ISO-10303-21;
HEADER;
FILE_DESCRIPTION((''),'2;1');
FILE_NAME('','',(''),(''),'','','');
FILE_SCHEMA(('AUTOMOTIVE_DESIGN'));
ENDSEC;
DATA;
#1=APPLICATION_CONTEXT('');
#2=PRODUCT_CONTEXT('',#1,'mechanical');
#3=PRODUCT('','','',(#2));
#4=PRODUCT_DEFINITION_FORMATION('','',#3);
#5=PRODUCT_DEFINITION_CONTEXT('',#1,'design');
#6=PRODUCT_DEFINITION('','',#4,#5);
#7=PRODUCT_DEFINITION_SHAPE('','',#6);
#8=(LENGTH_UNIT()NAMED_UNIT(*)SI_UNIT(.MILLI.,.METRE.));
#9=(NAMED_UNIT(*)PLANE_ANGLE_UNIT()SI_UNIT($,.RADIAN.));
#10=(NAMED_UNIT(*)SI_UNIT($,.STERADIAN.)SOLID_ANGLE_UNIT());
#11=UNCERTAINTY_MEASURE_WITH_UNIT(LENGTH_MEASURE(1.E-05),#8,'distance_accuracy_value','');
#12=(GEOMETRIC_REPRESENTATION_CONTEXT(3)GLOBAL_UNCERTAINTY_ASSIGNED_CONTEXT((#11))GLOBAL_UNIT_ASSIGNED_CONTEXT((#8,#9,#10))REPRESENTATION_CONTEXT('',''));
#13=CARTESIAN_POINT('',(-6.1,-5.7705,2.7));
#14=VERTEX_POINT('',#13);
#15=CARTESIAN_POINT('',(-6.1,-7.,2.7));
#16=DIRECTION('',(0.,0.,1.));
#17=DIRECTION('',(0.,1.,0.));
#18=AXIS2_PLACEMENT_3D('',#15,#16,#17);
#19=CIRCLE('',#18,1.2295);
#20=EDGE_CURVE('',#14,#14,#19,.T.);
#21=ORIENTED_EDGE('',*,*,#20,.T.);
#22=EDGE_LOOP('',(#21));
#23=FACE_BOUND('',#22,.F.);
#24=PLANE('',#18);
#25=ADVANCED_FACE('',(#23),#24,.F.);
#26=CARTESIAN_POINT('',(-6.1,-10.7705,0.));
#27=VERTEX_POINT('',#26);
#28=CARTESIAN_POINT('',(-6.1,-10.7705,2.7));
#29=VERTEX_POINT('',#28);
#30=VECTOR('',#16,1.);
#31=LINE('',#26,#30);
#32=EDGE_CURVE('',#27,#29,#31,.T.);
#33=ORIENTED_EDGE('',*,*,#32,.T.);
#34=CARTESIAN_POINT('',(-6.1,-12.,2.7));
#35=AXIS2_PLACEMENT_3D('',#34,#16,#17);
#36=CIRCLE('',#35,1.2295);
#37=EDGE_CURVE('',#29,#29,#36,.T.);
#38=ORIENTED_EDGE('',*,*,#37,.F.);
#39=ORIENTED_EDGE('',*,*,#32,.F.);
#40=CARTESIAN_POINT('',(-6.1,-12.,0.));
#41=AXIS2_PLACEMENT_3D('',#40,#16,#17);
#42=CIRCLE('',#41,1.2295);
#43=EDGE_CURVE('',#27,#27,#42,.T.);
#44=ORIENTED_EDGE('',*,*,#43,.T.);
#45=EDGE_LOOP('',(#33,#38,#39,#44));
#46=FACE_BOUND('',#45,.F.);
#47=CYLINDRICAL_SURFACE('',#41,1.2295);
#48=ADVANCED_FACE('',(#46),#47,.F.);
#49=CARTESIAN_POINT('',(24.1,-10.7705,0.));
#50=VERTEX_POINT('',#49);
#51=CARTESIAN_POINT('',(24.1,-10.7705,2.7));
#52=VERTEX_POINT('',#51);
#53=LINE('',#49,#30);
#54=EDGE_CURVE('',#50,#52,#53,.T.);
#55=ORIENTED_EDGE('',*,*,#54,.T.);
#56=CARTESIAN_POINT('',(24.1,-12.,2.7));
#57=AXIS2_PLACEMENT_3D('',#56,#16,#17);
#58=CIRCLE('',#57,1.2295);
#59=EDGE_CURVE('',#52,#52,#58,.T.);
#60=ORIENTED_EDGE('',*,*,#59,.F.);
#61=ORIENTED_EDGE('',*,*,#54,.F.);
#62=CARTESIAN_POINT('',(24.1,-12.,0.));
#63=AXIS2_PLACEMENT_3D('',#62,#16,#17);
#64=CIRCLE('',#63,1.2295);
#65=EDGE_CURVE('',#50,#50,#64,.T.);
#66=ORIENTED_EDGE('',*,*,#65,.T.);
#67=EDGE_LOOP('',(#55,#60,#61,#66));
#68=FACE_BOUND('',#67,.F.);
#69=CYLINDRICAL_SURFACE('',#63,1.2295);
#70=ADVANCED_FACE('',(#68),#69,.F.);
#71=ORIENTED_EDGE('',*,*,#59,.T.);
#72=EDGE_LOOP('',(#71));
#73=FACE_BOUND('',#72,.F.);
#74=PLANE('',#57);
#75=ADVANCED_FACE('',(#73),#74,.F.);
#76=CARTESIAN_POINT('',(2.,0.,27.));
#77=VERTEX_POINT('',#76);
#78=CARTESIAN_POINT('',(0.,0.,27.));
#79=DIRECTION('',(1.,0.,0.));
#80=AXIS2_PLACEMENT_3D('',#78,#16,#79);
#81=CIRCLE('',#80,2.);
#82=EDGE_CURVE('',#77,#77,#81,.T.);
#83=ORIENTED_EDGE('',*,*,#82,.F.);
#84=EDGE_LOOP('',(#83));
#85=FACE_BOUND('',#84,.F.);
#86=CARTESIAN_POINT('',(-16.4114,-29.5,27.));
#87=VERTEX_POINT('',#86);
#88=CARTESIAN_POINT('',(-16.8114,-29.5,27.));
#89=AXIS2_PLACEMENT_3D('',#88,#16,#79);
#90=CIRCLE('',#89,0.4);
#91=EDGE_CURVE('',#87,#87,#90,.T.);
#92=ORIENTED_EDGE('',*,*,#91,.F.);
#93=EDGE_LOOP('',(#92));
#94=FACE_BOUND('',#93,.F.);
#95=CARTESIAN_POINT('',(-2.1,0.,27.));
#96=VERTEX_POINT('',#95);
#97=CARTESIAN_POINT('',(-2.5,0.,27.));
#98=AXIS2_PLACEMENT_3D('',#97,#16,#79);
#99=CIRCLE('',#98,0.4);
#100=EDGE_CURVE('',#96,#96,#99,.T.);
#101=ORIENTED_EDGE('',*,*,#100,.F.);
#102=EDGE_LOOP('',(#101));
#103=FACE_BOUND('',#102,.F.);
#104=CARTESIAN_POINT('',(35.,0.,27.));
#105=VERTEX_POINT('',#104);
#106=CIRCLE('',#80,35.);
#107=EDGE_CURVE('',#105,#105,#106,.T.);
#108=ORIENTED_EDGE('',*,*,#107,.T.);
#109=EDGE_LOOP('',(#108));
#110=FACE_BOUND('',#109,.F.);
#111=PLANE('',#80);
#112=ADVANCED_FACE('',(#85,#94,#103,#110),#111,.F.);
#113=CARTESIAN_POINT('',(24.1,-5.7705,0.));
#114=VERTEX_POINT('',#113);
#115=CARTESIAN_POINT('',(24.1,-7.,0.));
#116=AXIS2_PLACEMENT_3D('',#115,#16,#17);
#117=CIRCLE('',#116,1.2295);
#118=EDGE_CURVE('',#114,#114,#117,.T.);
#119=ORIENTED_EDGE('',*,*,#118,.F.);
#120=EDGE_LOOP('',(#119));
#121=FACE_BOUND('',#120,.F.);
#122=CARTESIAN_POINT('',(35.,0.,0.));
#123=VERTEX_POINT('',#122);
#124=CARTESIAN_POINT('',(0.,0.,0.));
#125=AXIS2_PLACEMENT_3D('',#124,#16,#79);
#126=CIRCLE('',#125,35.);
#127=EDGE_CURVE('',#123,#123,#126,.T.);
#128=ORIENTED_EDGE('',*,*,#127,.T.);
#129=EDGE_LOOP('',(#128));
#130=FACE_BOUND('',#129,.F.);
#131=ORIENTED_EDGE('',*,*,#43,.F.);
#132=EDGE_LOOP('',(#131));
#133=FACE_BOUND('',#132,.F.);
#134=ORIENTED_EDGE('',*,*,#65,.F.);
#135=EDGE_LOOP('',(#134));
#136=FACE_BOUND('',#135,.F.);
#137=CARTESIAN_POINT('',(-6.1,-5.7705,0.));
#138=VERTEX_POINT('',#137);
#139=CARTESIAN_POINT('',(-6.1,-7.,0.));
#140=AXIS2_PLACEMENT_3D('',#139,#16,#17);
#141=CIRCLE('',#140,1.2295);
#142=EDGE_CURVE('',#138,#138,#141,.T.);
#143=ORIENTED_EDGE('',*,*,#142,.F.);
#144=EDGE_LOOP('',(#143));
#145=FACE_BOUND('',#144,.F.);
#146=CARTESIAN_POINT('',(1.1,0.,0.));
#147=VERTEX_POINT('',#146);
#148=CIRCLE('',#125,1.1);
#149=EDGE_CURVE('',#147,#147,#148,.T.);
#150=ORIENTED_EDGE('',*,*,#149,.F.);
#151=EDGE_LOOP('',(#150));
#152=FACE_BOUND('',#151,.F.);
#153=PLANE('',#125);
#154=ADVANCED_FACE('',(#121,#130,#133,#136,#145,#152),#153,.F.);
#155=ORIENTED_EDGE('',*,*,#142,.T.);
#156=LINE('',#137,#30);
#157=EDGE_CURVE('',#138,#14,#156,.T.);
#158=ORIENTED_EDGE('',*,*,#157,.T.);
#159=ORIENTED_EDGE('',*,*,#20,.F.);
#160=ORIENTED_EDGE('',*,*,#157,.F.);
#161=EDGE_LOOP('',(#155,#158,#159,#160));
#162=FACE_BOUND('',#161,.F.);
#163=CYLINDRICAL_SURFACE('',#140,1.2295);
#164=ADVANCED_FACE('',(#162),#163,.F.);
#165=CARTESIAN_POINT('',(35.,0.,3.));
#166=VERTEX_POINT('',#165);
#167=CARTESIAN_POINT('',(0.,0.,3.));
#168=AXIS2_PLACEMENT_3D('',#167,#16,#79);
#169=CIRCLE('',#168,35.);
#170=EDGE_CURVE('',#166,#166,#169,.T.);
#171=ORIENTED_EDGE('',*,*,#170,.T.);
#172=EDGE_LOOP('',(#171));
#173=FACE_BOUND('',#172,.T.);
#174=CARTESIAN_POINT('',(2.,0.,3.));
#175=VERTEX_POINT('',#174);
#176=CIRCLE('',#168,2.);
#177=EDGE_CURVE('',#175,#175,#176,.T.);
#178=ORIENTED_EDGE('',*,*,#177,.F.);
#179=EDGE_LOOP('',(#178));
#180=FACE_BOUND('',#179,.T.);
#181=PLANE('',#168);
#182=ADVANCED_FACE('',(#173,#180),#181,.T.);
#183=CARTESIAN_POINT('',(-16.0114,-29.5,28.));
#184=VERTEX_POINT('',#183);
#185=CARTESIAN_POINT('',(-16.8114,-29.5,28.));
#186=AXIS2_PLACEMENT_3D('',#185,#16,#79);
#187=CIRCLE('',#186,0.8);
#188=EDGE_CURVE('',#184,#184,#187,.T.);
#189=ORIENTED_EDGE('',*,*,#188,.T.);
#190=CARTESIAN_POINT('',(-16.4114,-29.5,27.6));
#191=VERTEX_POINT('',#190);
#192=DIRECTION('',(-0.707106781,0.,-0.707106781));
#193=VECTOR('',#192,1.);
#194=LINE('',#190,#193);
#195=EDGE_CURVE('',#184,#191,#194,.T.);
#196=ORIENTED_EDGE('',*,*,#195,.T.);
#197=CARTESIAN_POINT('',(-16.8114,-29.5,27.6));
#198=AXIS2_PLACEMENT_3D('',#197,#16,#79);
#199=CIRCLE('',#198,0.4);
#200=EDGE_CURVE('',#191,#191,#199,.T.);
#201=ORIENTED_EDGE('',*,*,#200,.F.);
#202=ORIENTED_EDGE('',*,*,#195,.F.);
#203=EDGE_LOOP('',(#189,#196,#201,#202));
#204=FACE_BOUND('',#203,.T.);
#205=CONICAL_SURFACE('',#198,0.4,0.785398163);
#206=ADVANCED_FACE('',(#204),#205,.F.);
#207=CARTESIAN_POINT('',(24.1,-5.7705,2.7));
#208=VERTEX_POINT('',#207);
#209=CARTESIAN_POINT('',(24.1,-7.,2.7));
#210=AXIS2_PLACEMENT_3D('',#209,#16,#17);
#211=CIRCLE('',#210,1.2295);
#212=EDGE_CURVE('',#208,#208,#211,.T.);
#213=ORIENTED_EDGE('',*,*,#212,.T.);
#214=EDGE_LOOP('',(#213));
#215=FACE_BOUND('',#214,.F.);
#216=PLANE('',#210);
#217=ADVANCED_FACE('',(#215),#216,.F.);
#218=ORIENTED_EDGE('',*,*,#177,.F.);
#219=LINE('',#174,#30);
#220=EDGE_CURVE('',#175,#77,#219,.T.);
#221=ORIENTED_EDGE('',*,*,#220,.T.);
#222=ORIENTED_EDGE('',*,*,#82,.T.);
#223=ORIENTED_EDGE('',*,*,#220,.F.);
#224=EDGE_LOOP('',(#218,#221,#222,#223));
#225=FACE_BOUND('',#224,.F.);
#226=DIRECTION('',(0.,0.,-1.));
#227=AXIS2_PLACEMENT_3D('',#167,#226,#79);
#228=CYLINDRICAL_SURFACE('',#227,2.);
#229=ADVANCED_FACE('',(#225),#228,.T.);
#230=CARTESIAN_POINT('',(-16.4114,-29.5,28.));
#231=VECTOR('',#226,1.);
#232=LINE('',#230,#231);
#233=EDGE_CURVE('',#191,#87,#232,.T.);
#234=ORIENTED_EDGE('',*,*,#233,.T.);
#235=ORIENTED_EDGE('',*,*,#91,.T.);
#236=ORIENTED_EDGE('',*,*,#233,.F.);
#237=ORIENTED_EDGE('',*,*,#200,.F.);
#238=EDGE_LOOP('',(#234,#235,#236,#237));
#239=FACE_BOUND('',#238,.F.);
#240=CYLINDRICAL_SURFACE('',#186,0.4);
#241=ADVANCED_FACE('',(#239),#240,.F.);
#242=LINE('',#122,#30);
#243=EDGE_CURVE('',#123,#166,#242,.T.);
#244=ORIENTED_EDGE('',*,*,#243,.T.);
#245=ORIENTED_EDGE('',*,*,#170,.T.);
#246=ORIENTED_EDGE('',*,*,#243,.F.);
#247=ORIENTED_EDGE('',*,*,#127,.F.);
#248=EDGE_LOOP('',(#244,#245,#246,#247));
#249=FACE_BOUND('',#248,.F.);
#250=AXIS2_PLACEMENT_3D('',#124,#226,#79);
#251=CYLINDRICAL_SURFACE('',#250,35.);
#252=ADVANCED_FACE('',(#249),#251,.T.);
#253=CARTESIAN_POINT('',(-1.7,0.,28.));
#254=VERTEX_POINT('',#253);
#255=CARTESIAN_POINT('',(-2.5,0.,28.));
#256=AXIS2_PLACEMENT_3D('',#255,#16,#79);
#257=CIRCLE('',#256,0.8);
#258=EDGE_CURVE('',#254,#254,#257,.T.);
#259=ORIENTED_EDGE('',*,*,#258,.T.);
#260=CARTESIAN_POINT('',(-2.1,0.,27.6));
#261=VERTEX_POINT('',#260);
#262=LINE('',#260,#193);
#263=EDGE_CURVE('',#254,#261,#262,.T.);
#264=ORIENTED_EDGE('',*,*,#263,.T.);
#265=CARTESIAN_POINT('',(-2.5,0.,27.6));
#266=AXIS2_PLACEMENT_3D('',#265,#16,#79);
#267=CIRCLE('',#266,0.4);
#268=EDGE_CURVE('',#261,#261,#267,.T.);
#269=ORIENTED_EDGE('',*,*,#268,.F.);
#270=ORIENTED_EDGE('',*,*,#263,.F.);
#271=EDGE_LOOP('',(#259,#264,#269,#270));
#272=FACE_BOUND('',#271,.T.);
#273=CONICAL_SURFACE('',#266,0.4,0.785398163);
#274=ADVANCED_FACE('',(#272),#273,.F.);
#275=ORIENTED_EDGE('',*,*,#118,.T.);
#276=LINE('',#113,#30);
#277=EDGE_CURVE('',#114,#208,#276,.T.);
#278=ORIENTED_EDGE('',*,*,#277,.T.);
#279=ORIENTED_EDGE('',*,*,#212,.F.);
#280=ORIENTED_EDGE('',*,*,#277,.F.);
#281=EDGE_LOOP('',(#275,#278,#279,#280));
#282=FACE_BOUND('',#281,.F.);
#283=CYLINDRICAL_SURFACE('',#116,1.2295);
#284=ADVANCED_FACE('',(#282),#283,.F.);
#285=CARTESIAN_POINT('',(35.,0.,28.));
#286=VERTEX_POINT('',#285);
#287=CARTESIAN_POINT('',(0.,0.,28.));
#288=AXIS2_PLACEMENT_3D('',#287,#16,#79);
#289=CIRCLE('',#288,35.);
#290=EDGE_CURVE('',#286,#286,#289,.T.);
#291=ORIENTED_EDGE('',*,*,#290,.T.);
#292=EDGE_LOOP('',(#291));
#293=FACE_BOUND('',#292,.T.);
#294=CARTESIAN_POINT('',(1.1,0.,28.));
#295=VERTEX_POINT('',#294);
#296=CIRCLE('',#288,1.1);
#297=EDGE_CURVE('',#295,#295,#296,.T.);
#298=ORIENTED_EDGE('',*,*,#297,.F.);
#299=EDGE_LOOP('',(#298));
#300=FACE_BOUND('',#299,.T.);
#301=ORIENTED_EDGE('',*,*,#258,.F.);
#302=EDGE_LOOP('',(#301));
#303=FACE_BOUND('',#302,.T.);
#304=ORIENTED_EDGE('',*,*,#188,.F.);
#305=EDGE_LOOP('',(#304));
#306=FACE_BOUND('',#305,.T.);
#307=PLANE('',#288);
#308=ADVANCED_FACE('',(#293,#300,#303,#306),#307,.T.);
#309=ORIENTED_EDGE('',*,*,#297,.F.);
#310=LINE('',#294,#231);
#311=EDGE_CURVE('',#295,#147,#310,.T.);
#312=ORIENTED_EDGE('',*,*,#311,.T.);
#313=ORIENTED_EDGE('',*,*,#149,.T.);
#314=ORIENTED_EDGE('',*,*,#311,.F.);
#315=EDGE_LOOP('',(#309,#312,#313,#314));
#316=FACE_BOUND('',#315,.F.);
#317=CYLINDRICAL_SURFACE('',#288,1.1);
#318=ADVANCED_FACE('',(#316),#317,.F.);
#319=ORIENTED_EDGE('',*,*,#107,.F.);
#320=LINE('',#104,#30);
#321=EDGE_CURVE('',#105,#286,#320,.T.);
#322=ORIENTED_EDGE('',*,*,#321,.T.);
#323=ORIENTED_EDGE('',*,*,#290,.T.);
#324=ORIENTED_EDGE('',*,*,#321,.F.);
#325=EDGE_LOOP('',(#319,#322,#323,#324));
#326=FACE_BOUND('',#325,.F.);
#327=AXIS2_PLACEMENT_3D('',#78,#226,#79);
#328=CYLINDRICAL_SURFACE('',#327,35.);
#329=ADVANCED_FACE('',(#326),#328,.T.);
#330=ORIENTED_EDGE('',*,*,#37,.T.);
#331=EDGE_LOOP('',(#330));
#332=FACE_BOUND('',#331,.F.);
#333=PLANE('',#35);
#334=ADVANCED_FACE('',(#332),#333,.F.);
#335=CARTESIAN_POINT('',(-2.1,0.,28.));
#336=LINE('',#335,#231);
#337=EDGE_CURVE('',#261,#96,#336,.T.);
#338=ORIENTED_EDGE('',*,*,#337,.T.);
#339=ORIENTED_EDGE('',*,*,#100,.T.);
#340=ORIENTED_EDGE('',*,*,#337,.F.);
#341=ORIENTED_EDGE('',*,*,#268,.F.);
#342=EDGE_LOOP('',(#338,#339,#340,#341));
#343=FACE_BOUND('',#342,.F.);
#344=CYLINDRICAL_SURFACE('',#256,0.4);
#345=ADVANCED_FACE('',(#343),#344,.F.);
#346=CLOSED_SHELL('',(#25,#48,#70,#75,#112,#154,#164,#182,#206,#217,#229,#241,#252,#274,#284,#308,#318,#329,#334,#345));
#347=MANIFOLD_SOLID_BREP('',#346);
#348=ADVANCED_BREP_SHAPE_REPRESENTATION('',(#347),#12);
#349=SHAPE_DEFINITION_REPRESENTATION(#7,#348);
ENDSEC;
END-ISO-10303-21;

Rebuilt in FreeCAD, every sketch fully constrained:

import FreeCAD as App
import Part
import Sketcher

V = App.Vector
Q = App.Units.Quantity


def edges_at(feature, points):
    """Names of the edges that pass closest to the given points."""
    edges = feature.Shape.Edges
    near = lambda p: min(range(len(edges)), key=lambda i: edges[i].distToShape(Part.Vertex(*p))[0])
    return sorted({f"Edge{near(p) + 1}" for p in points})

doc = App.newDocument("Part")
body = doc.addObject("PartDesign::Body", "Body")

# Sketch on XY plane
sketch1 = body.newObject("Sketcher::SketchObject", "Sketch")
sketch1.AttachmentSupport = (doc.getObject("XY_Plane"), [""])
sketch1.MapMode = "FlatFace"
sketch1.addGeometry(Part.Circle(V(0, 0, 0), V(0, 0, 1), 35), False)
sketch1.addConstraint(Sketcher.Constraint("Coincident", 0, 3, -1, 1))
sketch1.addConstraint(Sketcher.Constraint("Diameter", 0, Q("70 mm")))
pad1 = body.newObject("PartDesign::Pad", "Pad")
pad1.Profile = sketch1
pad1.Length = 3

# Sketch on XY plane
sketch2 = body.newObject("Sketcher::SketchObject", "Sketch001")
sketch2.AttachmentSupport = (doc.getObject("XY_Plane"), [""])
sketch2.MapMode = "FlatFace"
sketch2.AttachmentOffset = App.Placement(V(0, 0, 3), App.Rotation())
sketch2.addGeometry(Part.Circle(V(0, 0, 0), V(0, 0, 1), 2), False)
sketch2.addConstraint(Sketcher.Constraint("Coincident", 0, 3, -1, 1))
sketch2.addConstraint(Sketcher.Constraint("Diameter", 0, Q("4 mm")))
pad2 = body.newObject("PartDesign::Pad", "Pad001")
pad2.Profile = sketch2
pad2.Length = 24

# Sketch on XY plane
sketch3 = body.newObject("Sketcher::SketchObject", "Sketch002")
sketch3.AttachmentSupport = (doc.getObject("XY_Plane"), [""])
sketch3.MapMode = "FlatFace"
sketch3.AttachmentOffset = App.Placement(V(0, 0, 27), App.Rotation())
sketch3.addGeometry(Part.Circle(V(0, 0, 0), V(0, 0, 1), 35), False)
sketch3.addConstraint(Sketcher.Constraint("Coincident", 0, 3, -1, 1))
sketch3.addConstraint(Sketcher.Constraint("Diameter", 0, Q("70 mm")))
pad3 = body.newObject("PartDesign::Pad", "Pad002")
pad3.Profile = sketch3
pad3.Length = 1

# Sketch on XY plane
sketch4 = body.newObject("Sketcher::SketchObject", "Sketch003")
sketch4.AttachmentSupport = (doc.getObject("XY_Plane"), [""])
sketch4.MapMode = "FlatFace"
sketch4.AttachmentOffset = App.Placement(V(0, 0, 28), App.Rotation())
sketch4.addGeometry(Part.Circle(V(0, 0, 0), V(0, 0, 1), 1.1), False)
sketch4.addConstraint(Sketcher.Constraint("Coincident", 0, 3, -1, 1))
sketch4.addConstraint(Sketcher.Constraint("Diameter", 0, Q("2.2 mm")))
pocket1 = body.newObject("PartDesign::Pocket", "Pocket")
pocket1.Profile = sketch4
pocket1.Type = "ThroughAll"

# Sketch on XY plane
sketch5 = body.newObject("Sketcher::SketchObject", "Sketch004")
sketch5.AttachmentSupport = (doc.getObject("XY_Plane"), [""])
sketch5.MapMode = "FlatFace"
sketch5.AttachmentOffset = App.Placement(V(0, 0, 28), App.Rotation())
sketch5.addGeometry(Part.Circle(V(-16.81, -29.5, 0), V(0, 0, 1), 0.4), False)
sketch5.addGeometry(Part.Circle(V(-2.5, 0, 0), V(0, 0, 1), 0.4), False)
sketch5.addConstraint(Sketcher.Constraint("Equal", 0, 1))
sketch5.addConstraint(Sketcher.Constraint("PointOnObject", 1, 3, -1))
sketch5.addConstraint(Sketcher.Constraint("Diameter", 0, Q("0.8 mm")))
sketch5.addConstraint(Sketcher.Constraint("DistanceY", 0, 3, -1, 1, Q("29.5 mm")))
sketch5.addConstraint(Sketcher.Constraint("DistanceX", 1, 3, -1, 1, Q("2.5 mm")))
sketch5.addConstraint(Sketcher.Constraint("DistanceX", 0, 3, -1, 1, Q("16.8114 mm")))
pocket2 = body.newObject("PartDesign::Pocket", "Pocket001")
pocket2.Profile = sketch5
pocket2.Length = 1
doc.recompute()

chamfer = body.newObject("PartDesign::Chamfer", "Chamfer")
chamfer.Base = (pocket2, edges_at(pocket2, [(-2.9, 0, 28), (-17.211, -29.5, 28)]))
chamfer.Size = 0.4

# Sketch on XY plane
sketch6 = body.newObject("Sketcher::SketchObject", "Sketch005")
sketch6.AttachmentSupport = (doc.getObject("XY_Plane"), [""])
sketch6.MapMode = "FlatFace"
sketch6.addGeometry(Part.Circle(V(24.1, -7, 0), V(0, 0, 1), 1.2), False)
sketch6.addGeometry(Part.Circle(V(-6.1, -7, 0), V(0, 0, 1), 1.2), False)
sketch6.addGeometry(Part.Circle(V(24.1, -12, 0), V(0, 0, 1), 1.2), False)
sketch6.addGeometry(Part.Circle(V(-6.1, -12, 0), V(0, 0, 1), 1.2), False)
sketch6.addConstraint(Sketcher.Constraint("Equal", 0, 1))
sketch6.addConstraint(Sketcher.Constraint("Equal", 1, 2))
sketch6.addConstraint(Sketcher.Constraint("Equal", 2, 3))
sketch6.addConstraint(Sketcher.Constraint("Horizontal", 0, 3, 1, 3))
sketch6.addConstraint(Sketcher.Constraint("Horizontal", 2, 3, 3, 3))
sketch6.addConstraint(Sketcher.Constraint("Vertical", 0, 3, 2, 3))
sketch6.addConstraint(Sketcher.Constraint("Vertical", 1, 3, 3, 3))
sketch6.addConstraint(Sketcher.Constraint("Diameter", 0, Q("2.459 mm")))
sketch6.addConstraint(Sketcher.Constraint("DistanceY", 0, 3, -1, 1, Q("7 mm")))
sketch6.addConstraint(Sketcher.Constraint("DistanceY", 2, 3, -1, 1, Q("12 mm")))
sketch6.addConstraint(Sketcher.Constraint("DistanceX", -1, 1, 0, 3, Q("24.1 mm")))
sketch6.addConstraint(Sketcher.Constraint("DistanceX", 1, 3, -1, 1, Q("6.1 mm")))
doc.recompute()
hole = body.newObject("PartDesign::Hole", "Hole")
hole.Profile = sketch6
hole.ThreadType = "None"
hole.Diameter = 2.459
hole.DepthType = "Dimension"
hole.Depth = 2.7
hole.DrillPoint = "Flat"
hole.Reversed = True

doc.recompute()
